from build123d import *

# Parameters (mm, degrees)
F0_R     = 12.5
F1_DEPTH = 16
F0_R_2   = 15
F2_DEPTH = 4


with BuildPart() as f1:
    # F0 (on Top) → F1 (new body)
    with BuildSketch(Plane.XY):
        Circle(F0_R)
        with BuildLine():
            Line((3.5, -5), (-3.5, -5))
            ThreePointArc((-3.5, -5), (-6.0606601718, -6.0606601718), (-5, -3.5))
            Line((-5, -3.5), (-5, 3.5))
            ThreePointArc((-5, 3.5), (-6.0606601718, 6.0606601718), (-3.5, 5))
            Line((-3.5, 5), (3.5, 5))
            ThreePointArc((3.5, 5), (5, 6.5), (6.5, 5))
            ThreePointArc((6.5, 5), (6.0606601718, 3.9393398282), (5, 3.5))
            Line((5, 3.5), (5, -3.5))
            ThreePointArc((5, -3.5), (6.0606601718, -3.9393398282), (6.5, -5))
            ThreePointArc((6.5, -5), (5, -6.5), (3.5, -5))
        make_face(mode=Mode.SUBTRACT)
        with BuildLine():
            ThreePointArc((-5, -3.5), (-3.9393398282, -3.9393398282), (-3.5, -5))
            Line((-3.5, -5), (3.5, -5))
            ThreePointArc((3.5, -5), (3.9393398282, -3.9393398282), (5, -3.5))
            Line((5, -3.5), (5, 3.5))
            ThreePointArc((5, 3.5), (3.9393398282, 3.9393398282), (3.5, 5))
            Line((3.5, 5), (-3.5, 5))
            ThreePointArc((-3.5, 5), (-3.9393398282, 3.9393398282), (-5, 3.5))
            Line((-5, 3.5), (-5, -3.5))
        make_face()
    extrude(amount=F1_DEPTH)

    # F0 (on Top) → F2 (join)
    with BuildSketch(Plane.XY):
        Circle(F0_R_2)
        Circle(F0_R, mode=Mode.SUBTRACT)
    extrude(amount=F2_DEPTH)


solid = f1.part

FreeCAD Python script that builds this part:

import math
import FreeCAD as App
import Part
import Sketcher

doc = App.newDocument("Part")
body = doc.addObject("PartDesign::Body", "Body")

# Sketch on XY plane
sketch1 = body.newObject("Sketcher::SketchObject", "Sketch")
sketch1.AttachmentSupport = (doc.getObject("XY_Plane"), [""])
sketch1.MapMode = "FlatFace"
sketch1.addGeometry([
    Part.Circle(App.Vector(0, 0, 0), App.Vector(0, 0, 1), 12.5),  # 0
    Part.ArcOfCircle(Part.Circle(App.Vector(5, -5, 0), App.Vector(0, 0, 1), 1.5), math.radians(180), math.radians(360)),  # 1
    Part.ArcOfCircle(Part.Circle(App.Vector(5, -5, 0), App.Vector(0, 0, 1), 1.5), math.radians(90), math.radians(180)),  # 2
    Part.ArcOfCircle(Part.Circle(App.Vector(5, -5, 0), App.Vector(0, 0, 1), 1.5), math.radians(0), math.radians(90)),  # 3
    Part.ArcOfCircle(Part.Circle(App.Vector(5, 5, 0), App.Vector(0, 0, 1), 1.5), math.radians(-90), math.radians(0)),  # 4
    Part.ArcOfCircle(Part.Circle(App.Vector(5, 5, 0), App.Vector(0, 0, 1), 1.5), math.radians(180), math.radians(270)),  # 5
    Part.ArcOfCircle(Part.Circle(App.Vector(5, 5, 0), App.Vector(0, 0, 1), 1.5), math.radians(0), math.radians(180)),  # 6
    Part.ArcOfCircle(Part.Circle(App.Vector(-5, 5, 0), App.Vector(0, 0, 1), 1.5), math.radians(0), math.radians(270)),  # 7
    Part.ArcOfCircle(Part.Circle(App.Vector(-5, 5, 0), App.Vector(0, 0, 1), 1.5), math.radians(-90), math.radians(0)),  # 8
    Part.ArcOfCircle(Part.Circle(App.Vector(-5, -5, 0), App.Vector(0, 0, 1), 1.5), math.radians(90), math.radians(360)),  # 9
    Part.ArcOfCircle(Part.Circle(App.Vector(-5, -5, 0), App.Vector(0, 0, 1), 1.5), math.radians(0), math.radians(90)),  # 10
], False)
sketch1.addConstraint([
    Sketcher.Constraint("Tangent", 1, 1, 2, 2),
    Sketcher.Constraint("Tangent", 2, 1, 3, 2),
    Sketcher.Constraint("Tangent", 3, 1, 1, 2),
    Sketcher.Constraint("Tangent", 4, 1, 5, 2),
    Sketcher.Constraint("Tangent", 5, 1, 6, 2),
    Sketcher.Constraint("Tangent", 6, 1, 4, 2),
    Sketcher.Constraint("Tangent", 7, 1, 8, 2),
    Sketcher.Constraint("Coincident", 8, 1, 7, 2),
    Sketcher.Constraint("Tangent", 9, 1, 10, 2),
    Sketcher.Constraint("Coincident", 10, 1, 9, 2),
    Sketcher.Constraint("Coincident", 0, 3, -1, 1),
    Sketcher.Constraint("Equal", 3, 4),
    Sketcher.Constraint("Equal", 6, 7),
    Sketcher.Constraint("Equal", 8, 9),
    Sketcher.Constraint("Symmetric", 1, 3, 7, 3, -1, 1),
    Sketcher.Constraint("Symmetric", 4, 3, 9, 3, -1, 1),
    Sketcher.Constraint("Symmetric", 4, 3, 7, 3, -2),
    Sketcher.Constraint("Horizontal", 10, 3, 1, 1),
    Sketcher.Constraint("Horizontal", 1, 1, 3, 1),
    Sketcher.Constraint("Horizontal", 8, 3, 5, 1),
    Sketcher.Constraint("Horizontal", 5, 1, 6, 1),
    Sketcher.Constraint("Horizontal", 6, 1, 7, 1),
    Sketcher.Constraint("Horizontal", 3, 1, 10, 1),
    Sketcher.Constraint("Vertical", 6, 3, 2, 1),
    Sketcher.Constraint("Vertical", 2, 1, 4, 1),
    Sketcher.Constraint("Vertical", 10, 3, 8, 1),
    Sketcher.Constraint("Vertical", 8, 1, 9, 1),
    Sketcher.Constraint("Diameter", 0, 25.0),
    Sketcher.Constraint("Radius", 1, 1.5),
    Sketcher.Constraint("DistanceX", -1, 1, 1, 3, 5.0),
    Sketcher.Constraint("DistanceY", 1, 3, -1, 1, 5.0),
])
pad1 = body.newObject("PartDesign::Pad", "Pad")
pad1.Profile = sketch1
pad1.Length = 16

# Sketch on XY plane
sketch2 = body.newObject("Sketcher::SketchObject", "Sketch001")
sketch2.AttachmentSupport = (doc.getObject("XY_Plane"), [""])
sketch2.MapMode = "FlatFace"
sketch2.addGeometry([
    Part.Circle(App.Vector(0, 0, 0), App.Vector(0, 0, 1), 15),
    Part.Circle(App.Vector(0, 0, 0), App.Vector(0, 0, 1), 12),
], False)
sketch2.addConstraint([
    Sketcher.Constraint("Coincident", 0, 3, -1, 1),
    Sketcher.Constraint("Coincident", 1, 3, -1, 1),
    Sketcher.Constraint("Diameter", 0, 30.0),
    Sketcher.Constraint("Diameter", 1, 25.0),
])
pad2 = body.newObject("PartDesign::Pad", "Pad001")
pad2.Profile = sketch2
pad2.Length = 4

doc.recompute()
